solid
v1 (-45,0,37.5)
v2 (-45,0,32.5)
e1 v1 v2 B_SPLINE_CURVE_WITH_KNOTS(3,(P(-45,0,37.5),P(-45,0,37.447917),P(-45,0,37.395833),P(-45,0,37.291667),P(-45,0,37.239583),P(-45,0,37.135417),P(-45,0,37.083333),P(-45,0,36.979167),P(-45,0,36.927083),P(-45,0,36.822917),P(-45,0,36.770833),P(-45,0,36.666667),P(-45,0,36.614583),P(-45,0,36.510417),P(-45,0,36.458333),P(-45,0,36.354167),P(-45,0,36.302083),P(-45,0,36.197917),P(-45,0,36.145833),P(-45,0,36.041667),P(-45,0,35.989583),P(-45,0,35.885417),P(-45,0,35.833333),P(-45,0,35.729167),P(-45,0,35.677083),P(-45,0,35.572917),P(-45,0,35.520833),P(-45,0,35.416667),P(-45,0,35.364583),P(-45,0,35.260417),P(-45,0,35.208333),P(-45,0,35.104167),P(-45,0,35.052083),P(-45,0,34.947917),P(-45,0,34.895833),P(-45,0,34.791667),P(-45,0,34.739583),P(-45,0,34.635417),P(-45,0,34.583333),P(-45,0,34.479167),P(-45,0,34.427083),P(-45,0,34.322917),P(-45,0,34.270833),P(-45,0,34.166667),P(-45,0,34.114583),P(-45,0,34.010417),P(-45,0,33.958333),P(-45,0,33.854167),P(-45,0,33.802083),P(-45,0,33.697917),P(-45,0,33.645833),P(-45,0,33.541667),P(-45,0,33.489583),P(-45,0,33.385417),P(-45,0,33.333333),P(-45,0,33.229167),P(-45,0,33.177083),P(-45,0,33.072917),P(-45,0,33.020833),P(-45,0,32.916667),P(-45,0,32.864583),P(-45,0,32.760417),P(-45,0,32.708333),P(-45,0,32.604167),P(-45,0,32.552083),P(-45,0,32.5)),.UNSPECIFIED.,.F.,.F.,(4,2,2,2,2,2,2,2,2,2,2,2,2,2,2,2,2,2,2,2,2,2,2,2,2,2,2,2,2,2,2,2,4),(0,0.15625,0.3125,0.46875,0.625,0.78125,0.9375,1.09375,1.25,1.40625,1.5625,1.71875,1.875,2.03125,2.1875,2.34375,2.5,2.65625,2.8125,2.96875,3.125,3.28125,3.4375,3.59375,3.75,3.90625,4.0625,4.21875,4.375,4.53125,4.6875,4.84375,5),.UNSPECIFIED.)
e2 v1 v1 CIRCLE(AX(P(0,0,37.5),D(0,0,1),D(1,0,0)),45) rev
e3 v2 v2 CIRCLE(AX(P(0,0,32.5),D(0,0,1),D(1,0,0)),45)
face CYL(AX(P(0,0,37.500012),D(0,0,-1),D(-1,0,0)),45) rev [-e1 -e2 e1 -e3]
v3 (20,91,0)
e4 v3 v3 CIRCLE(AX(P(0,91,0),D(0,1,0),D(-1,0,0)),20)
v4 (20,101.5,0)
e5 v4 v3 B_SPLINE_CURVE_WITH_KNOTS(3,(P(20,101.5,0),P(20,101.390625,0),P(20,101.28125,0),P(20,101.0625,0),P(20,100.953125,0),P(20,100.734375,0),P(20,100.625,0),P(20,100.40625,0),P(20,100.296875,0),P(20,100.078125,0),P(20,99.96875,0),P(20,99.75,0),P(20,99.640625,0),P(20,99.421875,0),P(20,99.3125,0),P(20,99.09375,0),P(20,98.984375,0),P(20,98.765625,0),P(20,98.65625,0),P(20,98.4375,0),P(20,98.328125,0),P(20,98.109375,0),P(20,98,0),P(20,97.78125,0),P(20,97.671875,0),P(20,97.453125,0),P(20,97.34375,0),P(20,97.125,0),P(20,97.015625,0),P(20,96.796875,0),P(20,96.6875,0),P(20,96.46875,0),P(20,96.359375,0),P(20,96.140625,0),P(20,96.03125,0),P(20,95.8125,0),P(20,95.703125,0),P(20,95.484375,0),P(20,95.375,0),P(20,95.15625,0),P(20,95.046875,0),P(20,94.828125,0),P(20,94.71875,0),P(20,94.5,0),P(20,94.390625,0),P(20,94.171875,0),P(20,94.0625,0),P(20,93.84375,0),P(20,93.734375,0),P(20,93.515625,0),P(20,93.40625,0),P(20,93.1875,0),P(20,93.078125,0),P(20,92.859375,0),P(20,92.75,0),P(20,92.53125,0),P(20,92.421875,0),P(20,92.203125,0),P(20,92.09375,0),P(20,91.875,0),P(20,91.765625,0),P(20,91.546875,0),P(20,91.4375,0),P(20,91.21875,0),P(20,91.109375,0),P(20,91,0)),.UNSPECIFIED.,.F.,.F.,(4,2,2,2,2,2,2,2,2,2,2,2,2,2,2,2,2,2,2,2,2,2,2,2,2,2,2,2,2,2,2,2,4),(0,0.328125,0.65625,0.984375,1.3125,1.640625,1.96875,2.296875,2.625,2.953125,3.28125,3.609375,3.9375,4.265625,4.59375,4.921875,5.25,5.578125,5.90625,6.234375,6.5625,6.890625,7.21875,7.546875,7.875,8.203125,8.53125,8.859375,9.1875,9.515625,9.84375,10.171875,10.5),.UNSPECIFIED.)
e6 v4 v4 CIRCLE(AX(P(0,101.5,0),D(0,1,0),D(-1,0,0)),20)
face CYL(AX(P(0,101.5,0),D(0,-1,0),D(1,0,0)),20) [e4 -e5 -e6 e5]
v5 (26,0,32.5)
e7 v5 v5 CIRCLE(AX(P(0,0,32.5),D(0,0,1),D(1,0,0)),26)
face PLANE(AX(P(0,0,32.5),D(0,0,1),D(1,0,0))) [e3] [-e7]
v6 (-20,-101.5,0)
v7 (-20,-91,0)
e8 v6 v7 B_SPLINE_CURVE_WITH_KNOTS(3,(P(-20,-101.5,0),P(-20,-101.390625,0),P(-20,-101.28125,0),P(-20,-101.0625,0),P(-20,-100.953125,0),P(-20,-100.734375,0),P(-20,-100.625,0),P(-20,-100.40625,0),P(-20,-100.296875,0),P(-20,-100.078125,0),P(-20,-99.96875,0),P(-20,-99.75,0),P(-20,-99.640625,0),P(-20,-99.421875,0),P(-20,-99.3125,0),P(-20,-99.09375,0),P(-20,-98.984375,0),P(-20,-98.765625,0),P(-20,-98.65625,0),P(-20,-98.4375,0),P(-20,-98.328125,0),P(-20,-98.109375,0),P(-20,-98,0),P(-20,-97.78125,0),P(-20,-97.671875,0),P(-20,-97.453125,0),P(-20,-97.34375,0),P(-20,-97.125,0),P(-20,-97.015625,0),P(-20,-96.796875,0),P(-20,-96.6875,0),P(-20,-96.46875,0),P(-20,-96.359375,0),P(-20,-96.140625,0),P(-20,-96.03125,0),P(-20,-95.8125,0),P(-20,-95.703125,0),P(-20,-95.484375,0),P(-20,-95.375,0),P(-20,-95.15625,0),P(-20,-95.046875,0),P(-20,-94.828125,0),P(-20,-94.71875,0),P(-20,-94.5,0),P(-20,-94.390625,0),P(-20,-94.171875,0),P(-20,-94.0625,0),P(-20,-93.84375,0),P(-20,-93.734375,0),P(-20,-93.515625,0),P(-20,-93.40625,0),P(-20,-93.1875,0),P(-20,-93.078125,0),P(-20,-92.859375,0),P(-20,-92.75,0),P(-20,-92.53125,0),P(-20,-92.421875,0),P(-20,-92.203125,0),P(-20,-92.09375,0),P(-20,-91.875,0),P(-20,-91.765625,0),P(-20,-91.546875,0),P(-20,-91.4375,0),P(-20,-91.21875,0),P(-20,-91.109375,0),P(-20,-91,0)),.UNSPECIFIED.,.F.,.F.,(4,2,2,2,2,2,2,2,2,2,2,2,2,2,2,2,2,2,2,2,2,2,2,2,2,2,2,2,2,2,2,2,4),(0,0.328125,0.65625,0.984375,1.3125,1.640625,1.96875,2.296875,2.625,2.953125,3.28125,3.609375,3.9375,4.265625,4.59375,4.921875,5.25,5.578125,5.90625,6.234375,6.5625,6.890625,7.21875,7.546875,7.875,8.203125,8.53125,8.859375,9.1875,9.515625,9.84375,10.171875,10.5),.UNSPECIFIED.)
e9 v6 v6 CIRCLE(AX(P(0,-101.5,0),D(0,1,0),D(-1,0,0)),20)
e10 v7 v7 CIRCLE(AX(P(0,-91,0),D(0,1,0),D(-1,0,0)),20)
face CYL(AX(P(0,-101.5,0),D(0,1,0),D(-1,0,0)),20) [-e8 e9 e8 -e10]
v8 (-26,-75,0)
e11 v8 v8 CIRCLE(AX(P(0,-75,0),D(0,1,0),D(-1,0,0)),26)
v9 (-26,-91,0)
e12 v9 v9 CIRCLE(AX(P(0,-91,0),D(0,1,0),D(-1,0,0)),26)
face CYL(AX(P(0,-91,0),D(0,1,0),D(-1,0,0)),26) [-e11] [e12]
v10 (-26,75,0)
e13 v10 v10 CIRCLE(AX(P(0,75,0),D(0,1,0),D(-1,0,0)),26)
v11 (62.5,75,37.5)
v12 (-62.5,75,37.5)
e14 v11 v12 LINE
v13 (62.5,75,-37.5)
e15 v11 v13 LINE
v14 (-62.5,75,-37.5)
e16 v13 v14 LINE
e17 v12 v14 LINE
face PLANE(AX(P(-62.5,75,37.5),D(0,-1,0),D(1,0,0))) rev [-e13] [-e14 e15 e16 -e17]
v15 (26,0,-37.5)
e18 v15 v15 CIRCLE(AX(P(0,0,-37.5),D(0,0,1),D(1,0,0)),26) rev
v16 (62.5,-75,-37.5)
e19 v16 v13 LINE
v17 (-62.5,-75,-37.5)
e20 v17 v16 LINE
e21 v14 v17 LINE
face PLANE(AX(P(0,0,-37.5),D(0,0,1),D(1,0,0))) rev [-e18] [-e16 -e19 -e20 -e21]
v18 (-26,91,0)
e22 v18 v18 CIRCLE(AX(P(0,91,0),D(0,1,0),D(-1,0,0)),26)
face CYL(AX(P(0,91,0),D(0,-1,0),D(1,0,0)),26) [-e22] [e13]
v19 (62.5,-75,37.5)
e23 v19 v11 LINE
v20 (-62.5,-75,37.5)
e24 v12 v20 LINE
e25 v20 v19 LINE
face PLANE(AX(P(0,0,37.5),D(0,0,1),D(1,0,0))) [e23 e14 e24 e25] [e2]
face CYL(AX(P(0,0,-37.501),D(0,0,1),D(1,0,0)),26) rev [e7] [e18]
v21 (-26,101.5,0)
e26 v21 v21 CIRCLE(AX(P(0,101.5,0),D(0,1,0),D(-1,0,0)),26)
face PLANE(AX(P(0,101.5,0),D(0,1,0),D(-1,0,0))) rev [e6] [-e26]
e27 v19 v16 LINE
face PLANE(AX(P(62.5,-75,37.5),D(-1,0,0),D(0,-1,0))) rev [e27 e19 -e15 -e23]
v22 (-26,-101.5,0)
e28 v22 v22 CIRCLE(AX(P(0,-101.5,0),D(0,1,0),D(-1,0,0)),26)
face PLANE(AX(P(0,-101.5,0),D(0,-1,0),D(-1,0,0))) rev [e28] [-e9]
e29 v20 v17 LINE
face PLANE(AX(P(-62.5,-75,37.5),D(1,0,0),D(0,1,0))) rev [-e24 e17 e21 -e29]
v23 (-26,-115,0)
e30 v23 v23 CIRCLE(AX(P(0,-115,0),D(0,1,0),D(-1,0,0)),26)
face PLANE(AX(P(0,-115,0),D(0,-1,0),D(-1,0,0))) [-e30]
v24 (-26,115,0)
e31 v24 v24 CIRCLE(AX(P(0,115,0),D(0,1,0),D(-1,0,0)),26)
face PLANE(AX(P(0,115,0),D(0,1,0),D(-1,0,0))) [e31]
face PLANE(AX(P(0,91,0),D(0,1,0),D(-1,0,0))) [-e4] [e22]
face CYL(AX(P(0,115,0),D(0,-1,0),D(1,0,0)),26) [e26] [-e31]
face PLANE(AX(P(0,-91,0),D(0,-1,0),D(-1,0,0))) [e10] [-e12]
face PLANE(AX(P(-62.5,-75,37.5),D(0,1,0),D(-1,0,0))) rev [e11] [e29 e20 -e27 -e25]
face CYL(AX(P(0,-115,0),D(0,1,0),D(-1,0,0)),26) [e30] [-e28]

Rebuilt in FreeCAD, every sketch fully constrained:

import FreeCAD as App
import Part
import Sketcher
Q = App.Units.Quantity

doc = App.newDocument("Part")
body = doc.addObject("PartDesign::Body", "Body")

sketch1 = body.newObject("Sketcher::SketchObject", "Sketch")
sketch1.AttachmentSupport = (doc.getObject("XY_Plane"), [""])
sketch1.MapMode = "FlatFace"
sketch1.addGeometry([
    Part.LineSegment(App.Vector(-62.5, -75, 0), App.Vector(62.5, -75, 0)),
    Part.LineSegment(App.Vector(62.5, -75, 0), App.Vector(62.5, 75, 0)),
    Part.LineSegment(App.Vector(62.5, 75, 0), App.Vector(-62.5, 75, 0)),
    Part.LineSegment(App.Vector(-62.5, 75, 0), App.Vector(-62.5, -75, 0)),
], False)
sketch1.addConstraint([
    Sketcher.Constraint("Coincident", 0, 2, 1, 1),
    Sketcher.Constraint("Coincident", 1, 2, 2, 1),
    Sketcher.Constraint("Coincident", 2, 2, 3, 1),
    Sketcher.Constraint("Coincident", 3, 2, 0, 1),
    Sketcher.Constraint("Horizontal", 0),
    Sketcher.Constraint("Vertical", 1),
    Sketcher.Constraint("Horizontal", 2),
    Sketcher.Constraint("Vertical", 3),
    Sketcher.Constraint("Symmetric", 0, 2, 2, 2, -1, 1),
    Sketcher.Constraint("DistanceX", 0, 1, 0, 2, Q("125 mm")),
    Sketcher.Constraint("DistanceY", 1, 1, 1, 2, Q("150 mm")),
])
pad1 = body.newObject("PartDesign::Pad", "Pad")
pad1.Profile = sketch1
pad1.Length = 75
pad1.Midplane = True

sketch2 = body.newObject("Sketcher::SketchObject", "Sketch001")
sketch2.AttachmentSupport = (doc.getObject("XY_Plane"), [""])
sketch2.MapMode = "FlatFace"
sketch2.AttachmentOffset = App.Placement(App.Vector(0, 0, 37.5), App.Rotation())
sketch2.addGeometry(Part.Circle(App.Vector(0, 0, 0), App.Vector(0, 0, 1), 45), False)
sketch2.addConstraint([
    Sketcher.Constraint("Coincident", 0, 3, -1, 1),
    Sketcher.Constraint("Diameter", 0, Q("90 mm")),
])
pocket1 = body.newObject("PartDesign::Pocket", "Pocket")
pocket1.Profile = sketch2
pocket1.Type = "TwoLengths"
pocket1.Length = 124.110723
pocket1.Length2 = 5
pocket1.Reversed = True

sketch3 = body.newObject("Sketcher::SketchObject", "Sketch002")
sketch3.AttachmentSupport = (doc.getObject("XY_Plane"), [""])
sketch3.MapMode = "FlatFace"
sketch3.AttachmentOffset = App.Placement(App.Vector(0, 0, 32.5), App.Rotation())
sketch3.addGeometry(Part.Circle(App.Vector(0, 0, 0), App.Vector(0, 0, 1), 26), False)
sketch3.addConstraint([
    Sketcher.Constraint("Coincident", 0, 3, -1, 1),
    Sketcher.Constraint("Diameter", 0, Q("52 mm")),
])
pocket2 = body.newObject("PartDesign::Pocket", "Pocket001")
pocket2.Profile = sketch3
pocket2.Type = "UpToFirst"

sketch4 = body.newObject("Sketcher::SketchObject", "Sketch003")
sketch4.AttachmentSupport = (doc.getObject("XZ_Plane"), [""])
sketch4.MapMode = "FlatFace"
sketch4.AttachmentOffset = App.Placement(App.Vector(0, 0, -75), App.Rotation())
sketch4.addGeometry(Part.Circle(App.Vector(0, 0, 0), App.Vector(0, 0, 1), 26), False)
sketch4.addConstraint([
    Sketcher.Constraint("Coincident", 0, 3, -1, 1),
    Sketcher.Constraint("Diameter", 0, Q("52 mm")),
])
pad2 = body.newObject("PartDesign::Pad", "Pad001")
pad2.Profile = sketch4
pad2.Length = 16
pad2.Reversed = True

sketch5 = body.newObject("Sketcher::SketchObject", "Sketch004")
sketch5.AttachmentSupport = (doc.getObject("XZ_Plane"), [""])
sketch5.MapMode = "FlatFace"
sketch5.AttachmentOffset = App.Placement(App.Vector(0, 0, -91), App.Rotation())
sketch5.addGeometry(Part.Circle(App.Vector(0, 0, 0), App.Vector(0, 0, 1), 20), False)
sketch5.addConstraint([
    Sketcher.Constraint("Coincident", 0, 3, -1, 1),
    Sketcher.Constraint("Diameter", 0, Q("40 mm")),
])
pad3 = body.newObject("PartDesign::Pad", "Pad002")
pad3.Profile = sketch5
pad3.Length = 10.5
pad3.Reversed = True

sketch6 = body.newObject("Sketcher::SketchObject", "Sketch005")
sketch6.AttachmentSupport = (doc.getObject("XZ_Plane"), [""])
sketch6.MapMode = "FlatFace"
sketch6.AttachmentOffset = App.Placement(App.Vector(0, 0, -101.5), App.Rotation())
sketch6.addGeometry(Part.Circle(App.Vector(0, 0, 0), App.Vector(0, 0, 1), 26), False)
sketch6.addConstraint([
    Sketcher.Constraint("Coincident", 0, 3, -1, 1),
    Sketcher.Constraint("Diameter", 0, Q("52 mm")),
])
pad4 = body.newObject("PartDesign::Pad", "Pad003")
pad4.Profile = sketch6
pad4.Length = 13.5
pad4.Reversed = True
doc.recompute()

mirrored = body.newObject("PartDesign::Mirrored", "Mirrored")
mirrored.Originals = [pad2, pad3, pad4]
mirrored.MirrorPlane = (doc.getObject("XZ_Plane"), [""])
body.Tip = mirrored

doc.recompute()
